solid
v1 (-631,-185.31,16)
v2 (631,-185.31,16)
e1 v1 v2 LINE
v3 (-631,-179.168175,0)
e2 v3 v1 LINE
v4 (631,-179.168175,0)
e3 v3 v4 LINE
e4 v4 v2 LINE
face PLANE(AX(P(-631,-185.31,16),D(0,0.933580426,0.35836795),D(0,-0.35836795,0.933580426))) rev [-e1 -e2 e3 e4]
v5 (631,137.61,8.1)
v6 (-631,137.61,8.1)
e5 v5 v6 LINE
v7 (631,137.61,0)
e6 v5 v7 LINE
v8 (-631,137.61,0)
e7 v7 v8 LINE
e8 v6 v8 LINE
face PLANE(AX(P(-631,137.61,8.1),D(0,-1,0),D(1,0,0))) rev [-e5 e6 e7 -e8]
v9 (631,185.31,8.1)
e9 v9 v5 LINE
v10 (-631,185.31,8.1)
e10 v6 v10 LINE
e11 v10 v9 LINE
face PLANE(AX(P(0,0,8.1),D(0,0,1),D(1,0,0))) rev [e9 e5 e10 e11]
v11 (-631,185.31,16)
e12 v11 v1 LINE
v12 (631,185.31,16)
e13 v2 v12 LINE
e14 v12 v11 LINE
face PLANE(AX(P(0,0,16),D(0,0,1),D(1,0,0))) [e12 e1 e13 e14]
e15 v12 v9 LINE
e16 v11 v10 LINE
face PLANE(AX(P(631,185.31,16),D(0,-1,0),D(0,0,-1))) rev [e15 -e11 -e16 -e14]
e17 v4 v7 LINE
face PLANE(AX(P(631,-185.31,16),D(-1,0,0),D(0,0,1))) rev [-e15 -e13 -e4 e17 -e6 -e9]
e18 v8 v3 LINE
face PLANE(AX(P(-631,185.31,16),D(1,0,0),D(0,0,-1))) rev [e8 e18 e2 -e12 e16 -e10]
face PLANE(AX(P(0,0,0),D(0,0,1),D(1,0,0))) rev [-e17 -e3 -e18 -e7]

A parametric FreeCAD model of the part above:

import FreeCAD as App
import Part
import Sketcher
Q = App.Units.Quantity


def add_polygon(sketch, points):
    """Adds a closed chain of lines whose ends are joined by coincident constraints."""
    first, n = sketch.GeometryCount, len(points)
    for a, b in zip(points, points[1:] + points[:1]):
        sketch.addGeometry(Part.LineSegment(App.Vector(*a, 0), App.Vector(*b, 0)), False)
    for i in range(n):
        sketch.addConstraint(Sketcher.Constraint("Coincident", first + i, 2, first + (i + 1) % n, 1))

doc = App.newDocument("Part")
body = doc.addObject("PartDesign::Body", "Body")

# Sketch on XY plane
sketch1 = body.newObject("Sketcher::SketchObject", "Sketch")
sketch1.AttachmentSupport = (doc.getObject("XY_Plane"), [""])
sketch1.MapMode = "FlatFace"
add_polygon(sketch1, [(-631, 185), (-631, -185), (631, -185), (631, 185)])  # lines 0-3
sketch1.addConstraint([
    Sketcher.Constraint("Vertical", 0),
    Sketcher.Constraint("Horizontal", 1),
    Sketcher.Constraint("Vertical", 2),
    Sketcher.Constraint("Horizontal", 3),
    Sketcher.Constraint("Symmetric", 0, 2, 2, 2, -1, 1),
    Sketcher.Constraint("DistanceX", 1, 1, 1, 2, Q("1262 mm")),
    Sketcher.Constraint("DistanceY", 0, 2, 0, 1, Q("370.62 mm")),
])
pad1 = body.newObject("PartDesign::Pad", "Pad")
pad1.Profile = sketch1
pad1.Length = 16

# Sketch on XY plane
sketch2 = body.newObject("Sketcher::SketchObject", "Sketch001")
sketch2.AttachmentSupport = (doc.getObject("XY_Plane"), [""])
sketch2.MapMode = "FlatFace"
add_polygon(sketch2, [(631, 185), (631, 138), (-631, 138), (-631, 185)])  # lines 0-3
sketch2.addConstraint([
    Sketcher.Constraint("Vertical", 0),
    Sketcher.Constraint("Horizontal", 1),
    Sketcher.Constraint("Vertical", 2),
    Sketcher.Constraint("Horizontal", 3),
    Sketcher.Constraint("DistanceX", 1, 2, 1, 1, Q("1262 mm")),
    Sketcher.Constraint("DistanceY", 0, 2, 0, 1, Q("47.7 mm")),
    Sketcher.Constraint("DistanceX", -1, 1, 0, 2, Q("631 mm")),
    Sketcher.Constraint("DistanceY", -1, 1, 0, 2, Q("137.61 mm")),
])
pocket1 = body.newObject("PartDesign::Pocket", "Pocket")
pocket1.Profile = sketch2
pocket1.Length = 8.1
pocket1.Reversed = True

# Sketch on YZ plane
sketch3 = body.newObject("Sketcher::SketchObject", "Sketch002")
sketch3.AttachmentSupport = (doc.getObject("YZ_Plane"), [""])
sketch3.MapMode = "FlatFace"
sketch3.AttachmentOffset = App.Placement(App.Vector(0, 0, 631), App.Rotation())
add_polygon(sketch3, [(-179, 0), (-185, 16), (-185, 0)])  # lines 0-2
sketch3.addConstraint([
    Sketcher.Constraint("Vertical", 1),
    Sketcher.Constraint("Horizontal", 2),
    Sketcher.Constraint("PointOnObject", 1, 2, -1),
    Sketcher.Constraint("DistanceY", 1, 2, 1, 1, Q("16 mm")),
    Sketcher.Constraint("Angle", 0, Q("111 deg")),
    Sketcher.Constraint("DistanceX", 0, 2, -1, 1, Q("185.31 mm")),
])
pocket2 = body.newObject("PartDesign::Pocket", "Pocket001")
pocket2.Profile = sketch3
pocket2.Type = "ThroughAll"

doc.recompute()
